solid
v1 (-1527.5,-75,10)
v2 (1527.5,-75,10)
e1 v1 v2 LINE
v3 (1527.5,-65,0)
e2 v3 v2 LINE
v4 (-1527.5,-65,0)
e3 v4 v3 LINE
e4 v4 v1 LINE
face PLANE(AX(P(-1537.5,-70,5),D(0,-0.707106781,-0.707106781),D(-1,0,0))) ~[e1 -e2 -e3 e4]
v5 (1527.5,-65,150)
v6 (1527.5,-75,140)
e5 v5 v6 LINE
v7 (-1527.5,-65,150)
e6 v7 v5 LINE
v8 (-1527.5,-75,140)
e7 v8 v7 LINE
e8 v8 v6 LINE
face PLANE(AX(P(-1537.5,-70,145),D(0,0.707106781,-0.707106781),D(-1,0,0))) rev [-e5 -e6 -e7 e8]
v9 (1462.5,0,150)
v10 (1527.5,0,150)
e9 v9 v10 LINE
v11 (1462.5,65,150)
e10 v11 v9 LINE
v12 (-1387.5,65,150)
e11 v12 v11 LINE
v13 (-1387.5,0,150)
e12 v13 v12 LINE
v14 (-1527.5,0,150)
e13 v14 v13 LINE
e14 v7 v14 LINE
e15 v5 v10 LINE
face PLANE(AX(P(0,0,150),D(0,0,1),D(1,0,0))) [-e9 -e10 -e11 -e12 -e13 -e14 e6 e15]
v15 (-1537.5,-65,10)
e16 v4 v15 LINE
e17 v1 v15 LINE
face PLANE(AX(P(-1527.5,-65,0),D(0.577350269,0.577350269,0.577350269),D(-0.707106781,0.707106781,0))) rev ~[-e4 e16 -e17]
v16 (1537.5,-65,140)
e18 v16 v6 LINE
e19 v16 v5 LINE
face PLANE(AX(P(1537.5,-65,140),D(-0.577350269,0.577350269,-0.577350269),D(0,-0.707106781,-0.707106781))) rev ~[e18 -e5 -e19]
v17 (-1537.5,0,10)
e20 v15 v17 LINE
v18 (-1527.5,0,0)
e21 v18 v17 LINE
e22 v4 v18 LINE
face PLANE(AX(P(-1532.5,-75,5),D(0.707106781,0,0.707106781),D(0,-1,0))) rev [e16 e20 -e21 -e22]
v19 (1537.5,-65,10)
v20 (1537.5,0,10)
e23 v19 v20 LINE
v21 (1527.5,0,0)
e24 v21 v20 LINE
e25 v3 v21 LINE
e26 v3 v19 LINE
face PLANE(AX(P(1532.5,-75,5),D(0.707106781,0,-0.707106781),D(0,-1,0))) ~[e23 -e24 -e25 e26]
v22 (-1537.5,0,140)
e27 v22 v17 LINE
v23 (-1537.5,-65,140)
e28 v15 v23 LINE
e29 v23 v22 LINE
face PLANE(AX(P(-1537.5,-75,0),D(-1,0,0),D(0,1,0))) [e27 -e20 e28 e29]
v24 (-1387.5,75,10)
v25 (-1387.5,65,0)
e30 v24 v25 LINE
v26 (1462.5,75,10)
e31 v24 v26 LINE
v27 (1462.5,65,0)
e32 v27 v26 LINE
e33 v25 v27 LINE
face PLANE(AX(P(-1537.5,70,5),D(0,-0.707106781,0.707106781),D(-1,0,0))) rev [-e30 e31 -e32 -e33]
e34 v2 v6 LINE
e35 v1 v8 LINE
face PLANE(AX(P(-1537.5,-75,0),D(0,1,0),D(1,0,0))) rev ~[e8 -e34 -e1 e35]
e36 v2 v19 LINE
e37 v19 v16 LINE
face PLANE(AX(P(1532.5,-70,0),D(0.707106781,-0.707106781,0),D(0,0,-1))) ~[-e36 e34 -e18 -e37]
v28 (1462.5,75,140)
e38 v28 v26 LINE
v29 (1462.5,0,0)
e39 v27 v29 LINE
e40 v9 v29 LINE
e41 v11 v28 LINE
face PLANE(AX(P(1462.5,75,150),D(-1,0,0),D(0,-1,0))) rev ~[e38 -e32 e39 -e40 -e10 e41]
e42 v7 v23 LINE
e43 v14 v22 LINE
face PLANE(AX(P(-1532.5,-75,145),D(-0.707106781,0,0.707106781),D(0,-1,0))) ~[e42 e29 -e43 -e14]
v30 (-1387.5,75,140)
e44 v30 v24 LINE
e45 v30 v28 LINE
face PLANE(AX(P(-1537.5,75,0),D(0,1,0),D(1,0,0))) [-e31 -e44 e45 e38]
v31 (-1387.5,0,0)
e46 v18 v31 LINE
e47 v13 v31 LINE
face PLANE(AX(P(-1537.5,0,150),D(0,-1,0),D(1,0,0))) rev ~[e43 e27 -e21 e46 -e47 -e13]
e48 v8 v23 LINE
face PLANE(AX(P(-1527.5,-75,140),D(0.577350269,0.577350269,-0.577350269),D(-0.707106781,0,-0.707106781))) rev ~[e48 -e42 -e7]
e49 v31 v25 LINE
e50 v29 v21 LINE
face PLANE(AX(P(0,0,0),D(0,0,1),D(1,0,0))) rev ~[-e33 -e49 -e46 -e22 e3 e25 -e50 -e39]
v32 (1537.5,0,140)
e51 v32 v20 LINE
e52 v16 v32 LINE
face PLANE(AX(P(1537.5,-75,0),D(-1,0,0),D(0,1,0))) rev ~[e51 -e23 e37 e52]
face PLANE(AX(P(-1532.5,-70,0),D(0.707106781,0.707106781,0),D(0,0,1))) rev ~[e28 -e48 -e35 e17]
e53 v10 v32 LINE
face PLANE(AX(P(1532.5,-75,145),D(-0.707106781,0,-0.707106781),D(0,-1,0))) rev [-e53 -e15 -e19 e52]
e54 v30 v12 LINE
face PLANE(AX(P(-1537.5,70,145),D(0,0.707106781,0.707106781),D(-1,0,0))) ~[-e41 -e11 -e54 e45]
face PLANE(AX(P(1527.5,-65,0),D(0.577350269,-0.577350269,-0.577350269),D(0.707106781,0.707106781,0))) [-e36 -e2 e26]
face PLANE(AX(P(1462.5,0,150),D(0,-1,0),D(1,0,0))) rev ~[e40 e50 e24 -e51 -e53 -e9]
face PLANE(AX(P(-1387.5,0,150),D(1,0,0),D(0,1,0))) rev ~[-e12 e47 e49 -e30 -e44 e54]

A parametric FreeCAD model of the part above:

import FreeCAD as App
import Part
import Sketcher
from FreeCAD import Vector
Q = App.Units.Quantity

doc = App.newDocument("Part")
body = doc.addObject("PartDesign::Body", "Body")

sketch1 = body.newObject("Sketcher::SketchObject", "Sketch")
sketch1.AttachmentSupport = (doc.getObject("XY_Plane"), [""])
sketch1.MapMode = "FlatFace"
sketch1.addGeometry([
    Part.LineSegment(Vector(-1538, 75, 0), Vector(-1538, -75, 0)),
    Part.LineSegment(Vector(-1538, -75, 0), Vector(1538, -75, 0)),
    Part.LineSegment(Vector(1538, -75, 0), Vector(1538, 75, 0)),
    Part.LineSegment(Vector(1538, 75, 0), Vector(-1538, 75, 0)),
], False)
sketch1.addConstraint([
    Sketcher.Constraint("Coincident", 0, 2, 1, 1),
    Sketcher.Constraint("Coincident", 1, 2, 2, 1),
    Sketcher.Constraint("Coincident", 2, 2, 3, 1),
    Sketcher.Constraint("Coincident", 3, 2, 0, 1),
    Sketcher.Constraint("Vertical", 0),
    Sketcher.Constraint("Horizontal", 1),
    Sketcher.Constraint("Vertical", 2),
    Sketcher.Constraint("Horizontal", 3),
    Sketcher.Constraint("Symmetric", 0, 2, 2, 2, -1, 1),
    Sketcher.Constraint("DistanceX", 1, 1, 1, 2, Q("3075 mm")),
    Sketcher.Constraint("DistanceY", 0, 2, 0, 1, Q("150 mm")),
])
pad1 = body.newObject("PartDesign::Pad", "Pad")
pad1.Profile = sketch1
pad1.Length = 150
doc.recompute()

chamfer = body.newObject("PartDesign::Chamfer", "Chamfer")
chamfer.Base = (pad1, ["Edge1"])
chamfer.UseAllEdges = True
chamfer.Size = 10

sketch2 = body.newObject("Sketcher::SketchObject", "Sketch001")
sketch2.AttachmentSupport = (doc.getObject("XY_Plane"), [""])
sketch2.MapMode = "FlatFace"
sketch2.AttachmentOffset = App.Placement(Vector(0, 0, 150), App.Rotation())
sketch2.addGeometry([
    Part.LineSegment(Vector(1538, 0, 0), Vector(1538, 75, 0)),
    Part.LineSegment(Vector(1538, 75, 0), Vector(1462, 75, 0)),
    Part.LineSegment(Vector(1462, 75, 0), Vector(1462, 0, 0)),
    Part.LineSegment(Vector(1462, 0, 0), Vector(1538, 0, 0)),
], False)
sketch2.addConstraint([
    Sketcher.Constraint("Coincident", 0, 2, 1, 1),
    Sketcher.Constraint("Coincident", 1, 2, 2, 1),
    Sketcher.Constraint("Coincident", 2, 2, 3, 1),
    Sketcher.Constraint("Coincident", 3, 2, 0, 1),
    Sketcher.Constraint("Vertical", 0),
    Sketcher.Constraint("Horizontal", 1),
    Sketcher.Constraint("Vertical", 2),
    Sketcher.Constraint("Horizontal", 3),
    Sketcher.Constraint("PointOnObject", 2, 2, -1),
    Sketcher.Constraint("Equal", 3, 0),
    Sketcher.Constraint("DistanceX", 1, 2, 1, 1, Q("75 mm")),
    Sketcher.Constraint("DistanceX", -1, 1, 0, 2, Q("1537.5 mm")),
])
pocket1 = body.newObject("PartDesign::Pocket", "Pocket")
pocket1.Profile = sketch2
pocket1.Type = "ThroughAll"

sketch3 = body.newObject("Sketcher::SketchObject", "Sketch002")
sketch3.AttachmentSupport = (doc.getObject("XY_Plane"), [""])
sketch3.MapMode = "FlatFace"
sketch3.AttachmentOffset = App.Placement(Vector(0, 0, 150), App.Rotation())
sketch3.addGeometry([
    Part.LineSegment(Vector(-1388, 75, 0), Vector(-1538, 75, 0)),
    Part.LineSegment(Vector(-1538, 75, 0), Vector(-1538, 0, 0)),
    Part.LineSegment(Vector(-1538, 0, 0), Vector(-1388, 0, 0)),
    Part.LineSegment(Vector(-1388, 0, 0), Vector(-1388, 75, 0)),
], False)
sketch3.addConstraint([
    Sketcher.Constraint("Coincident", 0, 2, 1, 1),
    Sketcher.Constraint("Coincident", 1, 2, 2, 1),
    Sketcher.Constraint("Coincident", 2, 2, 3, 1),
    Sketcher.Constraint("Coincident", 3, 2, 0, 1),
    Sketcher.Constraint("Horizontal", 0),
    Sketcher.Constraint("Vertical", 1),
    Sketcher.Constraint("Horizontal", 2),
    Sketcher.Constraint("Vertical", 3),
    Sketcher.Constraint("PointOnObject", 1, 2, -1),
    Sketcher.Constraint("DistanceX", 0, 2, 0, 1, Q("150 mm")),
    Sketcher.Constraint("DistanceY", 1, 2, 1, 1, Q("75 mm")),
    Sketcher.Constraint("DistanceX", 0, 2, -1, 1, Q("1537.5 mm")),
])
pocket2 = body.newObject("PartDesign::Pocket", "Pocket001")
pocket2.Profile = sketch3
pocket2.Type = "ThroughAll"

doc.recompute()
